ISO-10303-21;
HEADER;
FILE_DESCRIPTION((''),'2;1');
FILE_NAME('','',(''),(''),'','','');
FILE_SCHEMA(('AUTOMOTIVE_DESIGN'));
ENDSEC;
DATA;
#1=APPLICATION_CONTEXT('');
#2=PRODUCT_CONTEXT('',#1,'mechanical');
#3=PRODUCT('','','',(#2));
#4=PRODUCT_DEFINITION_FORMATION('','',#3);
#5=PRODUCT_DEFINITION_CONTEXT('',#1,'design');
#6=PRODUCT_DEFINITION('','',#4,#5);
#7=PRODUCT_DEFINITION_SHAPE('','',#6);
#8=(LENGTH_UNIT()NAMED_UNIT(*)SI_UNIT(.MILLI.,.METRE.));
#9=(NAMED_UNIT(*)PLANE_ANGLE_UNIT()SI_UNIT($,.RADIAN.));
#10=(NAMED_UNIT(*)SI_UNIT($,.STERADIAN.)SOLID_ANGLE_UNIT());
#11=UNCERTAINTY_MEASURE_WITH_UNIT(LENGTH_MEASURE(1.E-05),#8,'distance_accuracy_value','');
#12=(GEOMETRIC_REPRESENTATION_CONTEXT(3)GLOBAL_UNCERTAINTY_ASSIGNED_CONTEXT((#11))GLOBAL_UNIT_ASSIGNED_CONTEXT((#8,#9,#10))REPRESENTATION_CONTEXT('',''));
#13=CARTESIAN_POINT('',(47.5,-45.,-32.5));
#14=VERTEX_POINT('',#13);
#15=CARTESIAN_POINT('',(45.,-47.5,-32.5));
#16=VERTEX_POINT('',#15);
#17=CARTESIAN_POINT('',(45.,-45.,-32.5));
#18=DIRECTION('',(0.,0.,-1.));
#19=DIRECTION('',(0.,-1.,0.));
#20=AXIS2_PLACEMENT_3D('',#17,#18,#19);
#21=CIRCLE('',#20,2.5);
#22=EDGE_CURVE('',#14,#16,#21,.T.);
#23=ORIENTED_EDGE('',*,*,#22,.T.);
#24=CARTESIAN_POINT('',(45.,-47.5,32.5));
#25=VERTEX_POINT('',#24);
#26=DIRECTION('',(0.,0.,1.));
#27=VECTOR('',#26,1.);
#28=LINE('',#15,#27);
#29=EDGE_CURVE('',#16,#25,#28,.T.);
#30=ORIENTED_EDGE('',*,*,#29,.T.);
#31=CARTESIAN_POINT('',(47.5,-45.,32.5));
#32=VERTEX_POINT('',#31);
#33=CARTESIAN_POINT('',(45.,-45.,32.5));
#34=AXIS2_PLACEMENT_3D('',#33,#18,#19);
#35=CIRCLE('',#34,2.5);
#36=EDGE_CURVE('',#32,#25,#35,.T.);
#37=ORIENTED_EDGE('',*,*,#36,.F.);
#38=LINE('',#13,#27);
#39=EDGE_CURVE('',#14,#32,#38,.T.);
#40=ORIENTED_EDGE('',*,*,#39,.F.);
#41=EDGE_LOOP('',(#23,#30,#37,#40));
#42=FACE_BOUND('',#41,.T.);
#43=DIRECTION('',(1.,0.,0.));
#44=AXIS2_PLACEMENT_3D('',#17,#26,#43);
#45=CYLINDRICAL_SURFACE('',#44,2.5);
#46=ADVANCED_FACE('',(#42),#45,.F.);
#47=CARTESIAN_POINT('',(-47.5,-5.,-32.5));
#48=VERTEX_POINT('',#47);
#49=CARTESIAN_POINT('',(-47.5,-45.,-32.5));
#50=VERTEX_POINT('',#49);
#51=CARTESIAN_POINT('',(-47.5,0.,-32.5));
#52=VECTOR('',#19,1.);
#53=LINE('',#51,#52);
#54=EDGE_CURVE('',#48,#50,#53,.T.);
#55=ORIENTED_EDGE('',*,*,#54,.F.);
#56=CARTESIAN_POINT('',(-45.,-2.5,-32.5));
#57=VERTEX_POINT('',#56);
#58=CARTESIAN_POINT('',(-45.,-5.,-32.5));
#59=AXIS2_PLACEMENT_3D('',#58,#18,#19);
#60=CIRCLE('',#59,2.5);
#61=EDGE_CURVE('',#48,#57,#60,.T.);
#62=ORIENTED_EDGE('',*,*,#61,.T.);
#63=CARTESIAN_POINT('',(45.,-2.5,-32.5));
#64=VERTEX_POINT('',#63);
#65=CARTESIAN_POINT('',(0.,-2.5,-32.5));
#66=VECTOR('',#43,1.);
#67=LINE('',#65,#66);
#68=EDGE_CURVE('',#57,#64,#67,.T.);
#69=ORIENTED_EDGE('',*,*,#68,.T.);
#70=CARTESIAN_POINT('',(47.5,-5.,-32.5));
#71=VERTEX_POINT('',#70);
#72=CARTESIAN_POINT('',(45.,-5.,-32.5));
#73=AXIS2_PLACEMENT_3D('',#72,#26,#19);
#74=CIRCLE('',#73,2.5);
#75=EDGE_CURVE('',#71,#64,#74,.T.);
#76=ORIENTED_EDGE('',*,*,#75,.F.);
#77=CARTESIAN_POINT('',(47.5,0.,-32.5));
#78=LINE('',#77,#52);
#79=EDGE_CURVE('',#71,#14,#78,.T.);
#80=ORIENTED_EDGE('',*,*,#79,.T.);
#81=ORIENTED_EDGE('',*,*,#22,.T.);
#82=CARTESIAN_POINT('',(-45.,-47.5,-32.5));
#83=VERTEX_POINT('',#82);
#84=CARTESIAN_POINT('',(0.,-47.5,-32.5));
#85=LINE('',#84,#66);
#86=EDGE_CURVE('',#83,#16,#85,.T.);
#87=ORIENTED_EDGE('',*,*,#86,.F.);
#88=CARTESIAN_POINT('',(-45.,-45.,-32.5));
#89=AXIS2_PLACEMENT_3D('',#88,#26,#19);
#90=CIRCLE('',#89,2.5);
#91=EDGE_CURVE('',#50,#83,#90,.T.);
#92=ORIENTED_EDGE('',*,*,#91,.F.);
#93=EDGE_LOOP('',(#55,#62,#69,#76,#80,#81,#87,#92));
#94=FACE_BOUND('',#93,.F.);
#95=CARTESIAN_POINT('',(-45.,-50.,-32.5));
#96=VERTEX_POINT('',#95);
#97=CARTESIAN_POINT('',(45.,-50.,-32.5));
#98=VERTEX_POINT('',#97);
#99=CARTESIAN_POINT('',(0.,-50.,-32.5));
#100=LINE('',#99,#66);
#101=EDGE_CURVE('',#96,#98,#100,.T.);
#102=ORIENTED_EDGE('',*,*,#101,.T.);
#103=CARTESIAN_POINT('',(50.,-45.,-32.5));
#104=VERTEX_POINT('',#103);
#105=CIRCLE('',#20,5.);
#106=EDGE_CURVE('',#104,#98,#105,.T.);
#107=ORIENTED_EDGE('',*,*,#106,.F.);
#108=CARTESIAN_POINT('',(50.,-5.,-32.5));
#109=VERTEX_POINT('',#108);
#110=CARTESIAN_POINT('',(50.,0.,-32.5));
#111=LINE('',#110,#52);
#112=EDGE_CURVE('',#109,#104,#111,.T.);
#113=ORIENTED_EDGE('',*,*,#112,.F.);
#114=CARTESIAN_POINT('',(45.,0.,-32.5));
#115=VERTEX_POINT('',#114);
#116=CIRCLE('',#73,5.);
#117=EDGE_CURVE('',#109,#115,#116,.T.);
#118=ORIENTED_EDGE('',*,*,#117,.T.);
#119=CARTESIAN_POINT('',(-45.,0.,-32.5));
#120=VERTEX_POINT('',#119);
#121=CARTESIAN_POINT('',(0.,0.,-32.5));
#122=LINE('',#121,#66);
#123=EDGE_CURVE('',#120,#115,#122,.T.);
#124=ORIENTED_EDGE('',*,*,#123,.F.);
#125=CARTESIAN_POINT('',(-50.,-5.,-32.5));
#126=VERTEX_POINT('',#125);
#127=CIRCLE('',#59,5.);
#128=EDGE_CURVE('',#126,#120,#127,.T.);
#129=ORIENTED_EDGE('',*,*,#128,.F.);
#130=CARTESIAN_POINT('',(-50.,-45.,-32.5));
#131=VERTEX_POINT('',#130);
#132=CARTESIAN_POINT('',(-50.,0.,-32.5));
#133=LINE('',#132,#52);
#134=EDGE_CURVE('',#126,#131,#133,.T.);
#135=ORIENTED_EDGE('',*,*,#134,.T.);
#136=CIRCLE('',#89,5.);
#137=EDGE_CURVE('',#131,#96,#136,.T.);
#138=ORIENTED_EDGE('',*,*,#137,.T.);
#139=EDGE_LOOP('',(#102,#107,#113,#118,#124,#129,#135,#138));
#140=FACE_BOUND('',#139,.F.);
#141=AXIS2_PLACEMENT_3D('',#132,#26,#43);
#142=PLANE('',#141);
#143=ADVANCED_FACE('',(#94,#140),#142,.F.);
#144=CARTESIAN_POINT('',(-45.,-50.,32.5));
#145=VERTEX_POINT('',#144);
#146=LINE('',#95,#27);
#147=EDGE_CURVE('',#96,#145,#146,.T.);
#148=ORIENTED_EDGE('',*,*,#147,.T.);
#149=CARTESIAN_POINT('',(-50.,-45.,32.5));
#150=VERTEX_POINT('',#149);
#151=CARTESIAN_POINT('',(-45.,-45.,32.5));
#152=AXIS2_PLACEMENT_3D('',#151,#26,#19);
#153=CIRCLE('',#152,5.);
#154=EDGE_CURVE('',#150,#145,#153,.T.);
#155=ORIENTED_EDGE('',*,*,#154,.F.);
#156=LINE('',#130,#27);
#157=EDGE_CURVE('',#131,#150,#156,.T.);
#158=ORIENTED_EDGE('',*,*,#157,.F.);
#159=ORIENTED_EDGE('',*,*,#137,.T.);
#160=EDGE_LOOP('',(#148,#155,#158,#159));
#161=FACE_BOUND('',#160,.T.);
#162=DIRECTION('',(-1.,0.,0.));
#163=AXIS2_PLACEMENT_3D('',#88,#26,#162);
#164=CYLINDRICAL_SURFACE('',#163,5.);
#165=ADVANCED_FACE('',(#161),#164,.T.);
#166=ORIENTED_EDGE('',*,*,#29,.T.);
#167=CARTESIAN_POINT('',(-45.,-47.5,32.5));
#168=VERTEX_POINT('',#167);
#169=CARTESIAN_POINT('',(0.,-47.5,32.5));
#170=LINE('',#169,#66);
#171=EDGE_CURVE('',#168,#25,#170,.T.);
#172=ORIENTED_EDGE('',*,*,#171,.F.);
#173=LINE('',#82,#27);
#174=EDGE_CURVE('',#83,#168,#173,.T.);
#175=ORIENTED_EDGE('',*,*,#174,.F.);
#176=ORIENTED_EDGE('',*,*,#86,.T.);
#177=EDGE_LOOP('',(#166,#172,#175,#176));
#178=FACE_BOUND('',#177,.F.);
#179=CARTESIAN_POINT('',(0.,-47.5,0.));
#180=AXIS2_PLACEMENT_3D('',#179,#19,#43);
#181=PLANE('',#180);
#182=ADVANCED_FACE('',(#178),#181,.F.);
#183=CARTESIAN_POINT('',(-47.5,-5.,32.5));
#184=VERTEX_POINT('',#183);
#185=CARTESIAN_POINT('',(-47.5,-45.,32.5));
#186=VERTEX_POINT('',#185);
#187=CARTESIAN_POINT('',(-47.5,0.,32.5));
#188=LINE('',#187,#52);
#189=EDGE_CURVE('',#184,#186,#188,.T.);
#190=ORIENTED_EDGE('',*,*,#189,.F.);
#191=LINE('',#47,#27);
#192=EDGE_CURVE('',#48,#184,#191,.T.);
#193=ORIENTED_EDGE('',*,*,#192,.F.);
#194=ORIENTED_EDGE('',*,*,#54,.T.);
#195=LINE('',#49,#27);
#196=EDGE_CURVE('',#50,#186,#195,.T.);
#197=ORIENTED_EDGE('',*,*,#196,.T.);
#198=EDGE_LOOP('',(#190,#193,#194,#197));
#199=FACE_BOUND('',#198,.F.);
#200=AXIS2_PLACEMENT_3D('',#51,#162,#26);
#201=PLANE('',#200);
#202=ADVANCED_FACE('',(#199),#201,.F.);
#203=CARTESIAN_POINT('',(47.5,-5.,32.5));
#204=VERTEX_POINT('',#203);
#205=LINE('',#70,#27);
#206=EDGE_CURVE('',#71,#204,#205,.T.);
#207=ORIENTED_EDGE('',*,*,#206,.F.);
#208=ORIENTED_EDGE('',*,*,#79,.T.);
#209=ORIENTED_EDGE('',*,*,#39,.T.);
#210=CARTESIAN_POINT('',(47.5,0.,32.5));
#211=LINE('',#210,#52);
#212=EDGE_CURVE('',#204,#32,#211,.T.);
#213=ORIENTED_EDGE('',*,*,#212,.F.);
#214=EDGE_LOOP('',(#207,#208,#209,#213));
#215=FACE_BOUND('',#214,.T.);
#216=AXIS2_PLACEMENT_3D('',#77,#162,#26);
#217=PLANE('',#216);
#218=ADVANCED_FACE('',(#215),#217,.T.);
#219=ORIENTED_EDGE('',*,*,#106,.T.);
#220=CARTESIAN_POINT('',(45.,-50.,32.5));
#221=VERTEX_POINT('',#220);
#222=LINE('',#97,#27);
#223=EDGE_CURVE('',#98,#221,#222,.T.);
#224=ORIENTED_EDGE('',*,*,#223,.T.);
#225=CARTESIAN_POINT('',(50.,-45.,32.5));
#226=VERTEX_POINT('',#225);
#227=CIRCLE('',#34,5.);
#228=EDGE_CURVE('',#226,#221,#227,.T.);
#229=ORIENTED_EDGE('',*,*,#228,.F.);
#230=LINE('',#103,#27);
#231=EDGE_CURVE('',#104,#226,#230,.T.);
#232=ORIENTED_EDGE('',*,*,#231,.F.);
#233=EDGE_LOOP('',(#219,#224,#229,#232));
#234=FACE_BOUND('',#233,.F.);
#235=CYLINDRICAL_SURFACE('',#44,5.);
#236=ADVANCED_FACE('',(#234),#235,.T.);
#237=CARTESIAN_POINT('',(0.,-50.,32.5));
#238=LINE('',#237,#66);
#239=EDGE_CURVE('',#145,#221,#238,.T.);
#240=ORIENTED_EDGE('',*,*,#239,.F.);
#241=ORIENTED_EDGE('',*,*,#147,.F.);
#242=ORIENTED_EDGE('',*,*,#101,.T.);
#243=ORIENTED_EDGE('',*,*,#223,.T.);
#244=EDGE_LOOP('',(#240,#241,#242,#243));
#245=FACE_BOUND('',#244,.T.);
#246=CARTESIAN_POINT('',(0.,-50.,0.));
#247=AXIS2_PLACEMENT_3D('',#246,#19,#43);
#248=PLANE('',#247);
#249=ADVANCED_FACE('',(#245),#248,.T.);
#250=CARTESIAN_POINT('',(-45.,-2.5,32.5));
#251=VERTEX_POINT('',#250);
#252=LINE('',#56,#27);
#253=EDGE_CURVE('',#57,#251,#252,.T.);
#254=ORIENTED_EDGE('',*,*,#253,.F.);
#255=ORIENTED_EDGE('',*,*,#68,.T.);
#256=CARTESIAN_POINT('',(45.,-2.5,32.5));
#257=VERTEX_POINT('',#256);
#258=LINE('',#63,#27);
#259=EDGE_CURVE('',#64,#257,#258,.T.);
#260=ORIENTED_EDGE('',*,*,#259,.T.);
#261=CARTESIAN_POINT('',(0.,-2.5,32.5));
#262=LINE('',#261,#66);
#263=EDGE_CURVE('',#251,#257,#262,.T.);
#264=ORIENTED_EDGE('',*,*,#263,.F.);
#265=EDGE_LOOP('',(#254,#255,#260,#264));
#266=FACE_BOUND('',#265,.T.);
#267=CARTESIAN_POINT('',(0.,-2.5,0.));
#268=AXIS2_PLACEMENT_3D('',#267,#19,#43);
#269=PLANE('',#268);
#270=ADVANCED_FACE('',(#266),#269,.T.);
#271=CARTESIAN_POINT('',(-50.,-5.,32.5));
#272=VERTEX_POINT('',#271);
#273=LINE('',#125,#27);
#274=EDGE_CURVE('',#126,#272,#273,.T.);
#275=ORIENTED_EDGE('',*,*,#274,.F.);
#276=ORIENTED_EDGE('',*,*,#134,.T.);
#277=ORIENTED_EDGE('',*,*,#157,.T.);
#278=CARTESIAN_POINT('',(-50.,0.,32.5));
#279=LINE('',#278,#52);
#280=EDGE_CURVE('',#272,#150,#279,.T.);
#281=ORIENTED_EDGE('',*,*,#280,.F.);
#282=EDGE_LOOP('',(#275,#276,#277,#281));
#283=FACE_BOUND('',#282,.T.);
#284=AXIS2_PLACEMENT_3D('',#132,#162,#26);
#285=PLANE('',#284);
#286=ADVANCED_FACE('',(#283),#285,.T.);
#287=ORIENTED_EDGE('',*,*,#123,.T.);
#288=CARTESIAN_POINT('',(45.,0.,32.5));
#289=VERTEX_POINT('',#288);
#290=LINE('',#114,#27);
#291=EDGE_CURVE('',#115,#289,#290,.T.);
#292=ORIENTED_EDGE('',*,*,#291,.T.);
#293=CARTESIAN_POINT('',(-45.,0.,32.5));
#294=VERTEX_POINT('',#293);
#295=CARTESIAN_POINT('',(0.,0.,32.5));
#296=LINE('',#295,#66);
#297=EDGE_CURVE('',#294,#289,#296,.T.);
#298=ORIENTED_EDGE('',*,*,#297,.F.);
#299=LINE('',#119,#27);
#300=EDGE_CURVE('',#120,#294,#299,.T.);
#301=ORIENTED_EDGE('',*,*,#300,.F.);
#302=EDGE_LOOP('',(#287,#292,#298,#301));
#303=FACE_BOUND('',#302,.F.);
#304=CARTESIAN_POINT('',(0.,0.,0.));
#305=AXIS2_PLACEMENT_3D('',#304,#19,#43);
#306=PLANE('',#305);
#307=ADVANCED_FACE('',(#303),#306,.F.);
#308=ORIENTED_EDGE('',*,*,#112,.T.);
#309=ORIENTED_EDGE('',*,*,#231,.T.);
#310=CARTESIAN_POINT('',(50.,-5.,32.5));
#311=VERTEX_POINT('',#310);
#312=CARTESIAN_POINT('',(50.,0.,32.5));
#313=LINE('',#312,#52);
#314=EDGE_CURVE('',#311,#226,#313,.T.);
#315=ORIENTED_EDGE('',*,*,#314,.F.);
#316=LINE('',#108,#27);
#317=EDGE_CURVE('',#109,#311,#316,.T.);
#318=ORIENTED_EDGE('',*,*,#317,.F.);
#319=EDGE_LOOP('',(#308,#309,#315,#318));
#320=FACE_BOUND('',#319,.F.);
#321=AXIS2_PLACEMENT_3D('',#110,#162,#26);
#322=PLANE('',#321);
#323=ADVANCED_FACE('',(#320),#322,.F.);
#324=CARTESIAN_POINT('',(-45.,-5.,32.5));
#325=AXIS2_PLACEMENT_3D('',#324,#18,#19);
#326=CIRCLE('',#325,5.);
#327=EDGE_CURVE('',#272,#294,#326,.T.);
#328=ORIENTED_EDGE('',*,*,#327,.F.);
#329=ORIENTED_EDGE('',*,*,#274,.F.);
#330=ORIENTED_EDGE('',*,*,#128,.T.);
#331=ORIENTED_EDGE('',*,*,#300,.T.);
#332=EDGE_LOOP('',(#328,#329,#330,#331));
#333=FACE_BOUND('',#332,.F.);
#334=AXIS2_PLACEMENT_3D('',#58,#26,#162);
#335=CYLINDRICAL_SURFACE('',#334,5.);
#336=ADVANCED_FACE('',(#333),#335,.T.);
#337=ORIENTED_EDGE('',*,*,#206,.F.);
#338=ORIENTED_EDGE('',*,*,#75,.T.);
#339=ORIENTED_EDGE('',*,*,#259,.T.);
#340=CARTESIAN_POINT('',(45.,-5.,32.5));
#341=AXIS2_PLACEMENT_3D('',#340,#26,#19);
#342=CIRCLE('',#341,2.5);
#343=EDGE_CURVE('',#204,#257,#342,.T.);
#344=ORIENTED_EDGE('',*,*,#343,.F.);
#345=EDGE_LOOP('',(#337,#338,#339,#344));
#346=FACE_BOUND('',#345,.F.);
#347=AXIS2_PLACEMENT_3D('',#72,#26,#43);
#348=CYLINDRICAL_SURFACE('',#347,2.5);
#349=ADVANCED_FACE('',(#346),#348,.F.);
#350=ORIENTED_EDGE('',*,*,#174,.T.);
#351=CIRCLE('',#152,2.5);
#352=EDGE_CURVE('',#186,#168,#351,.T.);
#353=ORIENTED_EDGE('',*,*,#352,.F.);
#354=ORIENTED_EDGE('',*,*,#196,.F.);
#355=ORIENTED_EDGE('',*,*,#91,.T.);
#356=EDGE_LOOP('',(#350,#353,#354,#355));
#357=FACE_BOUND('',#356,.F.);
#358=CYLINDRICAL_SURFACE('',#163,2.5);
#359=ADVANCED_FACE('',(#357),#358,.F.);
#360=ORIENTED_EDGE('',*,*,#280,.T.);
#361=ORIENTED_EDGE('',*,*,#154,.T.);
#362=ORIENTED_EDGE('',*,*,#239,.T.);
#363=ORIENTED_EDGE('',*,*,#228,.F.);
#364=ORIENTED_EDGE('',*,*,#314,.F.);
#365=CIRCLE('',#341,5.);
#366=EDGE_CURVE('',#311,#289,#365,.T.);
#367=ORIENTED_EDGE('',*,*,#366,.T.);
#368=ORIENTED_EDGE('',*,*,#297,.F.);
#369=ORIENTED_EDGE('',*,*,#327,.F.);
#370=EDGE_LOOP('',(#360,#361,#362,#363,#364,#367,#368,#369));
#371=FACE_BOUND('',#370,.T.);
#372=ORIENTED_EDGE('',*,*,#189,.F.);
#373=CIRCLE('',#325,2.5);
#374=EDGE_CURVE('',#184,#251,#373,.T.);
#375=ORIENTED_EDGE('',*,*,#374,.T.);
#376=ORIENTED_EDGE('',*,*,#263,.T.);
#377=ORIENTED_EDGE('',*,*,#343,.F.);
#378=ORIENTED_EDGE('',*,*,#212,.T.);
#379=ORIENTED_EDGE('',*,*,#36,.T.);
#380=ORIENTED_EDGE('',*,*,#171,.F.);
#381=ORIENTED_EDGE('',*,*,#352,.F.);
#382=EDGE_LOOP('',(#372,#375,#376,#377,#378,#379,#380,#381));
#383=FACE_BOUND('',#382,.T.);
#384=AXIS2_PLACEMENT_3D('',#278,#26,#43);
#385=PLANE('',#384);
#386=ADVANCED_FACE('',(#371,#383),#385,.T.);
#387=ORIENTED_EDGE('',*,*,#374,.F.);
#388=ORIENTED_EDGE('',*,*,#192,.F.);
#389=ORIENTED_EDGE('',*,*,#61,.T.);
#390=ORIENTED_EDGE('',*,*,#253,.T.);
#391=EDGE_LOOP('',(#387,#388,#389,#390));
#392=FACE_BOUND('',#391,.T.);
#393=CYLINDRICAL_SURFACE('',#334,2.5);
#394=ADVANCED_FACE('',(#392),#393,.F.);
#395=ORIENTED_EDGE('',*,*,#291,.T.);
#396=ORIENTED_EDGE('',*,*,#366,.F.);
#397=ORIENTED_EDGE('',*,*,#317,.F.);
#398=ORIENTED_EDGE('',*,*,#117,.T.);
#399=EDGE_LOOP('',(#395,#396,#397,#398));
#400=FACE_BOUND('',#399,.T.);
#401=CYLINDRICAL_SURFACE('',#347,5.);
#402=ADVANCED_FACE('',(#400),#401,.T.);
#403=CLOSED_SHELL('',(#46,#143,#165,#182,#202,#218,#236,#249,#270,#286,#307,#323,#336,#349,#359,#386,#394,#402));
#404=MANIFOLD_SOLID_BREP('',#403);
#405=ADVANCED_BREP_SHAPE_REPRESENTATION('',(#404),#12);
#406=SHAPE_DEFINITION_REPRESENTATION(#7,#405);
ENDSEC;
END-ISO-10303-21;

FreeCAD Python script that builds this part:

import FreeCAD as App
import Part
import Sketcher


def edges_at(feature, points):
    """Names of the edges that pass closest to the given points."""
    edges = feature.Shape.Edges
    near = lambda p: min(range(len(edges)), key=lambda i: edges[i].distToShape(Part.Vertex(*p))[0])
    return sorted({f"Edge{near(p) + 1}" for p in points})


def faces_at(feature, points):
    """Names of the faces that lie closest to the given points."""
    faces = feature.Shape.Faces
    near = lambda p: min(range(len(faces)), key=lambda i: faces[i].distToShape(Part.Vertex(*p))[0])
    return sorted({f"Face{near(p) + 1}" for p in points})


def add_polygon(sketch, points):
    """Adds a closed chain of lines whose ends are joined by coincident constraints."""
    first, n = sketch.GeometryCount, len(points)
    for a, b in zip(points, points[1:] + points[:1]):
        sketch.addGeometry(Part.LineSegment(App.Vector(*a, 0), App.Vector(*b, 0)), False)
    for i in range(n):
        sketch.addConstraint(Sketcher.Constraint("Coincident", first + i, 2, first + (i + 1) % n, 1))

doc = App.newDocument("Part")
body = doc.addObject("PartDesign::Body", "Body")

sketch1 = body.newObject("Sketcher::SketchObject", "Sketch")
sketch1.AttachmentSupport = (doc.getObject("XZ_Plane"), [""])
sketch1.MapMode = "FlatFace"
add_polygon(sketch1, [(-50, 32), (-50, -32), (50, -32), (50, 32)])
sketch1.addConstraint([
    Sketcher.Constraint("Vertical", 0),
    Sketcher.Constraint("Horizontal", 1),
    Sketcher.Constraint("Vertical", 2),
    Sketcher.Constraint("Horizontal", 3),
    Sketcher.Constraint("Symmetric", 0, 2, 2, 2, -1, 1),
    Sketcher.Constraint("DistanceX", 1, 1, 1, 2, 100.0),
    Sketcher.Constraint("DistanceY", 0, 2, 0, 1, 65.0),
])
pad1 = body.newObject("PartDesign::Pad", "Pad")
pad1.Profile = sketch1
pad1.Length = 50
doc.recompute()

fillet = body.newObject("PartDesign::Fillet", "Fillet")
fillet.Base = (pad1, edges_at(pad1, [
    (-50, -50, 0),
    (-50, 0, 0),
    (50, -50, 0),
    (50, 0, 0),
]))
fillet.Radius = 5
doc.recompute()

thickness = body.newObject("PartDesign::Thickness", "Thickness")
thickness.Base = (fillet, faces_at(fillet, [(0, -25, 32.5), (0, -25, -32.5)]))
thickness.Value = 2.5
thickness.Reversed = True
thickness.Join = "Arc"

doc.recompute()
